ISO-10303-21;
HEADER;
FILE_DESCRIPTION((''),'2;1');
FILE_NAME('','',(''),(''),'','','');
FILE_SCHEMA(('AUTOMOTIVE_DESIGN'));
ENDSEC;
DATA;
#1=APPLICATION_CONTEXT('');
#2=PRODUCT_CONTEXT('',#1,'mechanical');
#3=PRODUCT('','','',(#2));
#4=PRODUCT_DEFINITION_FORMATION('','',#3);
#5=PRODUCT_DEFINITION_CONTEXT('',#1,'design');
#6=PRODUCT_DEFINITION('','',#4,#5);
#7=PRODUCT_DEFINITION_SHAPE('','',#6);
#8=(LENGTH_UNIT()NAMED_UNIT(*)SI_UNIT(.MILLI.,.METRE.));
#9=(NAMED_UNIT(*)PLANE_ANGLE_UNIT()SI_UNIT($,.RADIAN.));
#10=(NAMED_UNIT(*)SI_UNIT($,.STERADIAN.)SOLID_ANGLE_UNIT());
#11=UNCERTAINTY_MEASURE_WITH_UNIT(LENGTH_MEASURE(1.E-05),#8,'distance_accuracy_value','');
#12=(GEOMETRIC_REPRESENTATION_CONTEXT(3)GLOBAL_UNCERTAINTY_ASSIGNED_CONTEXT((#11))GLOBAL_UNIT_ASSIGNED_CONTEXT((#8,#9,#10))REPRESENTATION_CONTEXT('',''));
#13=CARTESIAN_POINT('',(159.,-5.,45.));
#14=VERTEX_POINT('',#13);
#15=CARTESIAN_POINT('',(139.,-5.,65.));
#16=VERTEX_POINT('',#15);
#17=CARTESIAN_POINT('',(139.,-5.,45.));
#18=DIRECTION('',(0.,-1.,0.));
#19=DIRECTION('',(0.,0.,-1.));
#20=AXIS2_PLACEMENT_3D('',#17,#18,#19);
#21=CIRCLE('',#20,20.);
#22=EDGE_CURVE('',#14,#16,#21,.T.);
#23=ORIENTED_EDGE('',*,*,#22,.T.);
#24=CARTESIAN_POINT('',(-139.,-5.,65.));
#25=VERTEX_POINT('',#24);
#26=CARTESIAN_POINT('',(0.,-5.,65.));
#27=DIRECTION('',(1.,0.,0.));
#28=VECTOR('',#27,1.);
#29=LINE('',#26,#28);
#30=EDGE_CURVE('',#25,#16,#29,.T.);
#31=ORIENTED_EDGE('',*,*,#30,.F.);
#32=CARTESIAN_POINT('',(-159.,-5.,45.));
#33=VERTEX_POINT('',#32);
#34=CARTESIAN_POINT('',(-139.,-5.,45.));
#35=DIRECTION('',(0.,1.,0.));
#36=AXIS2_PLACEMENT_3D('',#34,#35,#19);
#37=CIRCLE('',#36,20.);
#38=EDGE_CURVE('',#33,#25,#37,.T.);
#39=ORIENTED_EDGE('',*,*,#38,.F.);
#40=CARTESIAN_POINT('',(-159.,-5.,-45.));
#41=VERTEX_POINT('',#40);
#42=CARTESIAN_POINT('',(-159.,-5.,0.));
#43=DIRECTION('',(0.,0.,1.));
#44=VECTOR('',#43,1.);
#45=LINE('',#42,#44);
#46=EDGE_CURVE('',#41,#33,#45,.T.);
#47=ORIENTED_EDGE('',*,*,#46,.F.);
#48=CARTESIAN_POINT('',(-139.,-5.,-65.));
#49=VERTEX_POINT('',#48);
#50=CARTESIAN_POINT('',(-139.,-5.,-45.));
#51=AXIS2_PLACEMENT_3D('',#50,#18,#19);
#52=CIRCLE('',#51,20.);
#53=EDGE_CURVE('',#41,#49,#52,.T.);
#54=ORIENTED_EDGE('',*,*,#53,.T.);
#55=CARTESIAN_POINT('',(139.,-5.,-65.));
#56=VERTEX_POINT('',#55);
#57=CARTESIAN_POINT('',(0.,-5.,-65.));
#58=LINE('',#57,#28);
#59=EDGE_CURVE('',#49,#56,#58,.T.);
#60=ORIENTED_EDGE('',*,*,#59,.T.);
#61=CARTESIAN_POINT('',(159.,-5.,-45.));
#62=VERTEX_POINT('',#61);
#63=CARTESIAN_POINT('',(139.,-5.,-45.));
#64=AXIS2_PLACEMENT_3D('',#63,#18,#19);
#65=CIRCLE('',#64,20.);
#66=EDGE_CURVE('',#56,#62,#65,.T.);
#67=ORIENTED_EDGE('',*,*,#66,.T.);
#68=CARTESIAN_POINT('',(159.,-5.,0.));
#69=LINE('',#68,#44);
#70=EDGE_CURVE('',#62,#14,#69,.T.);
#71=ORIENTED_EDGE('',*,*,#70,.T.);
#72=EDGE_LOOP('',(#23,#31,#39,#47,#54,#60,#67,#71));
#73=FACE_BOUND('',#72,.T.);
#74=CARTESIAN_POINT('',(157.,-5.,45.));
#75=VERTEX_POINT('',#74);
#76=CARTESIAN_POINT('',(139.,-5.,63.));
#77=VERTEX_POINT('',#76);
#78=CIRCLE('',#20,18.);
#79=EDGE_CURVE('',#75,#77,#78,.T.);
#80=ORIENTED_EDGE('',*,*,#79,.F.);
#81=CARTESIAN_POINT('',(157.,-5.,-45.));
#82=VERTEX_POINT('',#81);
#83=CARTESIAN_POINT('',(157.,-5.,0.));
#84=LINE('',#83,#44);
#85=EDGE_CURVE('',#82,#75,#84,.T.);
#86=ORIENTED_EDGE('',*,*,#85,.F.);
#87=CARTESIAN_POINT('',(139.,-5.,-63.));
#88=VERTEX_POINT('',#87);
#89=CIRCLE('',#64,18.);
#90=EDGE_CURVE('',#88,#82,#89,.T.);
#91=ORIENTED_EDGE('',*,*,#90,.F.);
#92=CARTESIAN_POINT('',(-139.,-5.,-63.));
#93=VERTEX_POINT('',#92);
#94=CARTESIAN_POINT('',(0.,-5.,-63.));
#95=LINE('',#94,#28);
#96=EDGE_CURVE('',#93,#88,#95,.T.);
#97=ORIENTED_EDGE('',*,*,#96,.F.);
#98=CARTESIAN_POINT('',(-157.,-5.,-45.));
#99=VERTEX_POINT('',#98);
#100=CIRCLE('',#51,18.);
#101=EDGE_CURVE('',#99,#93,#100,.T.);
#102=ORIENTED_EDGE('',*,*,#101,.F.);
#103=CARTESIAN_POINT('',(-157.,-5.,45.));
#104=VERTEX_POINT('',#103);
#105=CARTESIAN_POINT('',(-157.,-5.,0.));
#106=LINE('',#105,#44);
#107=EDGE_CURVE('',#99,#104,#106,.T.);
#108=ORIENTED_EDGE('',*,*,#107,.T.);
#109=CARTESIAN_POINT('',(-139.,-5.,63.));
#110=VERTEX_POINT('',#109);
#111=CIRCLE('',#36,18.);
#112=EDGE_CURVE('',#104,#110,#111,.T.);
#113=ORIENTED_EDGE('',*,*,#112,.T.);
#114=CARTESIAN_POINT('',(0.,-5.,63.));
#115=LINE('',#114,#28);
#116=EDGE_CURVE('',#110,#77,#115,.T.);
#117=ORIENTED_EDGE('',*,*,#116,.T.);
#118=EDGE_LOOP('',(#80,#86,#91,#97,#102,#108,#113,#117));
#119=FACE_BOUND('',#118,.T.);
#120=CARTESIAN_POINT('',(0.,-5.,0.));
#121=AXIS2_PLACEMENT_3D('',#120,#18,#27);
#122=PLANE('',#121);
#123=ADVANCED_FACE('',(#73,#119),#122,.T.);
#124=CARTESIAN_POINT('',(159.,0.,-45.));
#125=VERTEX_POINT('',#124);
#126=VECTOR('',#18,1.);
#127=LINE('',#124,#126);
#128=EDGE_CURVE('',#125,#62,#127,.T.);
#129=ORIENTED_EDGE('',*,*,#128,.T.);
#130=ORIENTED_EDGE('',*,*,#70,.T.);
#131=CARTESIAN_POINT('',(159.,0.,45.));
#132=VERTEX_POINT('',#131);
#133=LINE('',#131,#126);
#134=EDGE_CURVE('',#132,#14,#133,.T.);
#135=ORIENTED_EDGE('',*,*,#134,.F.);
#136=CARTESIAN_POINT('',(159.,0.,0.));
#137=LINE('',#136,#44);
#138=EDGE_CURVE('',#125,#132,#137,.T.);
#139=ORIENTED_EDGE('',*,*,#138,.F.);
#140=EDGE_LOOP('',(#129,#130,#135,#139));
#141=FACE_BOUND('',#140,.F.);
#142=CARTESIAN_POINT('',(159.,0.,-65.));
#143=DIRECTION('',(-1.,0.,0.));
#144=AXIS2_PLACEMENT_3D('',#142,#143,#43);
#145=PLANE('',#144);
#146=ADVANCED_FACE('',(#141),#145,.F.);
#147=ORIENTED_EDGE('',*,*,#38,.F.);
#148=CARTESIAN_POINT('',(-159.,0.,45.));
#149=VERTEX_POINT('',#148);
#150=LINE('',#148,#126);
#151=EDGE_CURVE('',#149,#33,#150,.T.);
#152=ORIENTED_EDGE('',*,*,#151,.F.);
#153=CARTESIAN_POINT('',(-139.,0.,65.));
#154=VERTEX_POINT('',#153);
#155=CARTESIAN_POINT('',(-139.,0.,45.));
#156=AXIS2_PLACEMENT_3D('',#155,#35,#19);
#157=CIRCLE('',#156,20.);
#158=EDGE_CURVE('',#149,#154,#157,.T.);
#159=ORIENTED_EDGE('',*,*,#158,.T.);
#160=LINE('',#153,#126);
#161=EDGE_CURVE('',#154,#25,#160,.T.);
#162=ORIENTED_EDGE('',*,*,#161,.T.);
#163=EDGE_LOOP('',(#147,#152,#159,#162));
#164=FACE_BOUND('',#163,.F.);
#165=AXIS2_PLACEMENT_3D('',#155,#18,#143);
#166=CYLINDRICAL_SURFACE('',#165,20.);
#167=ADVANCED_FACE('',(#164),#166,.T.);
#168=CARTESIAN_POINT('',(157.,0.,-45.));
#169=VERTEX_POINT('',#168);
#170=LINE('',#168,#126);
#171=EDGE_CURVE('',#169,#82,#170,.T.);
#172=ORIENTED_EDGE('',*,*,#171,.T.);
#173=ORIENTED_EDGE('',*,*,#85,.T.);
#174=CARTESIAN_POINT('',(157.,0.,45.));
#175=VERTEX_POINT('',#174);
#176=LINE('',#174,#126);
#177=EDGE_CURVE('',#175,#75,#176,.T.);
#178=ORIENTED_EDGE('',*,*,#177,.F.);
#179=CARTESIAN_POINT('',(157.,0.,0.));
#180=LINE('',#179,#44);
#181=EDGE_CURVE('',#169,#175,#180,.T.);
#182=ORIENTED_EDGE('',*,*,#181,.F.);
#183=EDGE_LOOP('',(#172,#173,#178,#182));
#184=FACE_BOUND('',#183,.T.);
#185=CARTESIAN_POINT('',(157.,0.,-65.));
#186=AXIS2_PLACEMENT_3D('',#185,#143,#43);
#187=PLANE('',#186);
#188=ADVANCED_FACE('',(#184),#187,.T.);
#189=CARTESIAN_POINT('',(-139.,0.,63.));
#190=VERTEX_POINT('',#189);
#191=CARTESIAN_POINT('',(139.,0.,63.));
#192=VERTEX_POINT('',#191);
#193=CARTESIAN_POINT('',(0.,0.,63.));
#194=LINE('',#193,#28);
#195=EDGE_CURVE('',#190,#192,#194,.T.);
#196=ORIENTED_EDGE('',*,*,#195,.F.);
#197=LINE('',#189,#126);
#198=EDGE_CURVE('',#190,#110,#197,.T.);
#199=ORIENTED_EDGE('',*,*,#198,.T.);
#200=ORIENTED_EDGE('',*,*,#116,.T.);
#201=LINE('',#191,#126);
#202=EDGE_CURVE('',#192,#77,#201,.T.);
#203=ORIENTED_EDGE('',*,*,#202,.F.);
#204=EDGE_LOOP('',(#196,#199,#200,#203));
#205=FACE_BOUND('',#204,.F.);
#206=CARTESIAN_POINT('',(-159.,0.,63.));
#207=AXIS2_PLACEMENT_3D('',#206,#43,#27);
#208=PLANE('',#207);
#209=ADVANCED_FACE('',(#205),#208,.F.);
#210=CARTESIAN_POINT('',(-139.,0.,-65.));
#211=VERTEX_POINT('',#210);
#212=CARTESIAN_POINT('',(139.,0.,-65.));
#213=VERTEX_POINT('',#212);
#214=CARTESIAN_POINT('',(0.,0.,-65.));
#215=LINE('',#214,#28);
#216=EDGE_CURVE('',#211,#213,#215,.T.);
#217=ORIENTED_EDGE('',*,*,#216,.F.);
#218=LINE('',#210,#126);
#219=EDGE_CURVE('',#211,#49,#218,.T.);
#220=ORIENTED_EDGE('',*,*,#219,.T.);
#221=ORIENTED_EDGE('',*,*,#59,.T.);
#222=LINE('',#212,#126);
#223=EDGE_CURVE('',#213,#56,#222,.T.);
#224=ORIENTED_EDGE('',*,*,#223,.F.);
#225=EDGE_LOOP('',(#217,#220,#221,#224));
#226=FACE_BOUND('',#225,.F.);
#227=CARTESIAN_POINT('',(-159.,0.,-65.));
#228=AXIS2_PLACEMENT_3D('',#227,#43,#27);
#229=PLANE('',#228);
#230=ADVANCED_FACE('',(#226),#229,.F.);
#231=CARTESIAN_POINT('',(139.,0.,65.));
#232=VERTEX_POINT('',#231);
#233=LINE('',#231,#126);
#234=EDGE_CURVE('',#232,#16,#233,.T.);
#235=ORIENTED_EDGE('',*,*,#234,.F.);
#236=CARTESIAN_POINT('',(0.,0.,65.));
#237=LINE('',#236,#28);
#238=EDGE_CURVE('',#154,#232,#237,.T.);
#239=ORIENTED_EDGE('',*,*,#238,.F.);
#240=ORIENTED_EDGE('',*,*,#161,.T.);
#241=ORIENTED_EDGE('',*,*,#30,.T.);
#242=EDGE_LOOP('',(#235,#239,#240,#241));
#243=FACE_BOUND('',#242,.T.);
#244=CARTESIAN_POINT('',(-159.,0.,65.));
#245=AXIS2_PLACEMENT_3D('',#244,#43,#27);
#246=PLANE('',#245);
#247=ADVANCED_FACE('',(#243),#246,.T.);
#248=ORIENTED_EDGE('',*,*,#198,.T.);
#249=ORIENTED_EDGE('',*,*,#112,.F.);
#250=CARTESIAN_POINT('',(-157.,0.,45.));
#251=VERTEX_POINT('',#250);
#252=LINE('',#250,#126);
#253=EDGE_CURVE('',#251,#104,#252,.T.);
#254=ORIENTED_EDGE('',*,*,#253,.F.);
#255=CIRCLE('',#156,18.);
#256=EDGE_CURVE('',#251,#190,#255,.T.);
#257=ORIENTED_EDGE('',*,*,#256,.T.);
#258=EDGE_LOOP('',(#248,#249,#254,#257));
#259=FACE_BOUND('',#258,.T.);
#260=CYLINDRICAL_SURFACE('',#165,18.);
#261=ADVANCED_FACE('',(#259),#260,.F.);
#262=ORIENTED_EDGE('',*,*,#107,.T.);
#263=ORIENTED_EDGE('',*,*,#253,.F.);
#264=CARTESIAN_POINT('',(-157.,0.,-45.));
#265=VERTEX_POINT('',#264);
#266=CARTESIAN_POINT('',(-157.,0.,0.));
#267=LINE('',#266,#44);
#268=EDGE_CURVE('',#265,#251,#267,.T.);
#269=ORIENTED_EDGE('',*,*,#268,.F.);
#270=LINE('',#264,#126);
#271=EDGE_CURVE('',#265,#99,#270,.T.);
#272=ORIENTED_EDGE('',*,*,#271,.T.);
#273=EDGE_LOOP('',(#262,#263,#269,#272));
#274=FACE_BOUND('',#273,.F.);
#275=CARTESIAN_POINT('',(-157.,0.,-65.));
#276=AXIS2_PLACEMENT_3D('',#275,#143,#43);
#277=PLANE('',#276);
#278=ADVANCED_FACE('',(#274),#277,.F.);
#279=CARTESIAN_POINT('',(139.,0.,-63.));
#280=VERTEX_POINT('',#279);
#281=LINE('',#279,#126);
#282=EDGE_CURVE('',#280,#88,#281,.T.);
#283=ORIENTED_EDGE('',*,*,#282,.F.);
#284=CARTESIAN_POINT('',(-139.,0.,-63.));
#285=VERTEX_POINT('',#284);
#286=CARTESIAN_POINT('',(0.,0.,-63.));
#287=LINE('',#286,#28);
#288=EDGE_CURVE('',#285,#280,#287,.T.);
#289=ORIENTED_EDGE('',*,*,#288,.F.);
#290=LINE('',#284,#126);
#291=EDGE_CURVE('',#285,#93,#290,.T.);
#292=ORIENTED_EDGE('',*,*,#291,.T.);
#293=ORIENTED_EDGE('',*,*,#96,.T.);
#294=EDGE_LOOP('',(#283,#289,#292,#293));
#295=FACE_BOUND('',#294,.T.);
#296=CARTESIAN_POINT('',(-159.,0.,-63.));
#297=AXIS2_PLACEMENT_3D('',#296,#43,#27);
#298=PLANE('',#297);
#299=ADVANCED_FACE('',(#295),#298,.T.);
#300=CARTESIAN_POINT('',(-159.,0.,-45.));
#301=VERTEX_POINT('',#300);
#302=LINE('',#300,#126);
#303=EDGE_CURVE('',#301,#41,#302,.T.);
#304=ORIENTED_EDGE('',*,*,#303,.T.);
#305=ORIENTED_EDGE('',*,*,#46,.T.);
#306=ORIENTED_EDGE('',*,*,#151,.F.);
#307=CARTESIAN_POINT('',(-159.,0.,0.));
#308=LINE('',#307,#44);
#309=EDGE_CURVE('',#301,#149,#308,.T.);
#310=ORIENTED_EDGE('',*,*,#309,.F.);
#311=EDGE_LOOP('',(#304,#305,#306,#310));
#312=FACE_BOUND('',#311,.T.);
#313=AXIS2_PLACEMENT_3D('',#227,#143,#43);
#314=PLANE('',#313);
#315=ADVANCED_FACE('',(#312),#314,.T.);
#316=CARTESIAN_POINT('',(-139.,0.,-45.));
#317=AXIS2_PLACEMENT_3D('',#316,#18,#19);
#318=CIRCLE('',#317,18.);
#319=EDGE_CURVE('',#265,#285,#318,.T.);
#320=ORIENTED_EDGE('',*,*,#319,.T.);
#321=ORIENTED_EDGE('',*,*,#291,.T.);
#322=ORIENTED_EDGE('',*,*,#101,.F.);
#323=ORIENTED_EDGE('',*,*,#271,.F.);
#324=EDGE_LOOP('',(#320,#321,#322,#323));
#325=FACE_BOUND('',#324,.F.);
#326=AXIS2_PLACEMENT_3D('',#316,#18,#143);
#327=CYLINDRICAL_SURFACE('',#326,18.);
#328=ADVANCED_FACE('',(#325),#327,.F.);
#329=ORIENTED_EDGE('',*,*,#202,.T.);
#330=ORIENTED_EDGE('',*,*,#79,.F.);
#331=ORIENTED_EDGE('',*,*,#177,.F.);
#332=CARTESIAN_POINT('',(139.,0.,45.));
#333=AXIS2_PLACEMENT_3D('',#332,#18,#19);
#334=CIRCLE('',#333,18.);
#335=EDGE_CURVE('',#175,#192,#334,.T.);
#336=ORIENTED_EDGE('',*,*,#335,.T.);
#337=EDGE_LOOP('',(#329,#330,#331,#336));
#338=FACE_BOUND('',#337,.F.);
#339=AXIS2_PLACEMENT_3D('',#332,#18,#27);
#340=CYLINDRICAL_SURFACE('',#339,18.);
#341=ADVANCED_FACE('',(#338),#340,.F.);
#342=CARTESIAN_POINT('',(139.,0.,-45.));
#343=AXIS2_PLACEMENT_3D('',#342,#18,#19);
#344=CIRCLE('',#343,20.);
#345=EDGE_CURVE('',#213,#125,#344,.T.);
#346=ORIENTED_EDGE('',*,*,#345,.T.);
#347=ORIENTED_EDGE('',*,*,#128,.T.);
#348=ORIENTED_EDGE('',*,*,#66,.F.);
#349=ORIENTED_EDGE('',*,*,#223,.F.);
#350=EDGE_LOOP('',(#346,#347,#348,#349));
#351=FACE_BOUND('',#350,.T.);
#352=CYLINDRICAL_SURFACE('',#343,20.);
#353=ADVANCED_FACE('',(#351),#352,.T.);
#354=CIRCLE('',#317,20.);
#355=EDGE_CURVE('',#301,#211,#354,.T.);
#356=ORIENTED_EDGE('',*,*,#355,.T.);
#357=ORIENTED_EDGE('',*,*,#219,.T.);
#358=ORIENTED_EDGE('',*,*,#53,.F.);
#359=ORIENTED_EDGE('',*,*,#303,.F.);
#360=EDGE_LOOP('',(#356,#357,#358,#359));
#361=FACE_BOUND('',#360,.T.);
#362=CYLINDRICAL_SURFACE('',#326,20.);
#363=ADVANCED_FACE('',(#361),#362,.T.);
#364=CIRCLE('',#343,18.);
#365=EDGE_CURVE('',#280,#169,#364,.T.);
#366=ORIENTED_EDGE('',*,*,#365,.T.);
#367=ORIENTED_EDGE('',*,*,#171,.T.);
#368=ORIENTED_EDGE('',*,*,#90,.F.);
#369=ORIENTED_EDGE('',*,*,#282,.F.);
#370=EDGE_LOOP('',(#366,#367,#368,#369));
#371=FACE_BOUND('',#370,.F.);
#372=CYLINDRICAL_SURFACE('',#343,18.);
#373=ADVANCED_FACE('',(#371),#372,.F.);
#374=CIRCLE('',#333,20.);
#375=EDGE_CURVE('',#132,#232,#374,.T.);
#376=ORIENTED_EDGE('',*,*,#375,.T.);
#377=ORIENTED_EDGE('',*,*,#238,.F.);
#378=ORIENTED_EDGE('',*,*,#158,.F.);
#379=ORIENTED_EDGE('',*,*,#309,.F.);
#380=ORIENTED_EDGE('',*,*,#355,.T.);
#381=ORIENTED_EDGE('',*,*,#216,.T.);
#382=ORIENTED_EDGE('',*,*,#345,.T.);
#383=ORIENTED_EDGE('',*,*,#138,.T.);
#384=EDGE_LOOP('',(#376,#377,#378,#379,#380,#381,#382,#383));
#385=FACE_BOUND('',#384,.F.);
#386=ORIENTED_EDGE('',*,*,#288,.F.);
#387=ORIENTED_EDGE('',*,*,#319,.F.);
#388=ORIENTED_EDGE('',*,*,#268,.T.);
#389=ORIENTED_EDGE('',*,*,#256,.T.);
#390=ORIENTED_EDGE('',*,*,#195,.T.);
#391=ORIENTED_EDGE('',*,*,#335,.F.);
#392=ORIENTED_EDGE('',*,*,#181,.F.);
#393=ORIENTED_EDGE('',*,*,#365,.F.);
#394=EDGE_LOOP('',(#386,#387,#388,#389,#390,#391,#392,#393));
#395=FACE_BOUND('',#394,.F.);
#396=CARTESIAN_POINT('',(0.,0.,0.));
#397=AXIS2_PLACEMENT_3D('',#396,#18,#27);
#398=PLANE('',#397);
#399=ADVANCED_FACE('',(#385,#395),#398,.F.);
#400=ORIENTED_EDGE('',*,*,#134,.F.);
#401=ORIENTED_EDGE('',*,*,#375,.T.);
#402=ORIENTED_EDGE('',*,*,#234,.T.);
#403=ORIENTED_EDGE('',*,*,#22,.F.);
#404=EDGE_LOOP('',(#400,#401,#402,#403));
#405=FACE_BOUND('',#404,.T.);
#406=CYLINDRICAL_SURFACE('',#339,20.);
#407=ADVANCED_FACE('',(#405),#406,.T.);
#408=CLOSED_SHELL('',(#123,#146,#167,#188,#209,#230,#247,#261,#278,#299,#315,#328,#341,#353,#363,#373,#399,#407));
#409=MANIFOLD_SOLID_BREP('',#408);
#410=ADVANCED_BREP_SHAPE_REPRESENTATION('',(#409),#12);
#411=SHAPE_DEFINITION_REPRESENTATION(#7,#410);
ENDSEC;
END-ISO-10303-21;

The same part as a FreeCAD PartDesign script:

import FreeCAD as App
import Part
import Sketcher
Q = App.Units.Quantity


def edges_at(feature, points):
    """Names of the edges that pass closest to the given points."""
    edges = feature.Shape.Edges
    near = lambda p: min(range(len(edges)), key=lambda i: edges[i].distToShape(Part.Vertex(*p))[0])
    return sorted({f"Edge{near(p) + 1}" for p in points})


def faces_at(feature, points):
    """Names of the faces that lie closest to the given points."""
    faces = feature.Shape.Faces
    near = lambda p: min(range(len(faces)), key=lambda i: faces[i].distToShape(Part.Vertex(*p))[0])
    return sorted({f"Face{near(p) + 1}" for p in points})

doc = App.newDocument("Part")
body = doc.addObject("PartDesign::Body", "Body")

sketch1 = body.newObject("Sketcher::SketchObject", "Sketch")
sketch1.AttachmentSupport = (doc.getObject("XZ_Plane"), [""])
sketch1.MapMode = "FlatFace"
sketch1.addGeometry(Part.LineSegment(App.Vector(-159, 65, 0), App.Vector(-159, -65, 0)), False)
sketch1.addGeometry(Part.LineSegment(App.Vector(-159, -65, 0), App.Vector(159, -65, 0)), False)
sketch1.addGeometry(Part.LineSegment(App.Vector(159, -65, 0), App.Vector(159, 65, 0)), False)
sketch1.addGeometry(Part.LineSegment(App.Vector(159, 65, 0), App.Vector(-159, 65, 0)), False)
sketch1.addConstraint(Sketcher.Constraint("Coincident", 0, 2, 1, 1))
sketch1.addConstraint(Sketcher.Constraint("Coincident", 1, 2, 2, 1))
sketch1.addConstraint(Sketcher.Constraint("Coincident", 2, 2, 3, 1))
sketch1.addConstraint(Sketcher.Constraint("Coincident", 3, 2, 0, 1))
sketch1.addConstraint(Sketcher.Constraint("Vertical", 0))
sketch1.addConstraint(Sketcher.Constraint("Horizontal", 1))
sketch1.addConstraint(Sketcher.Constraint("Vertical", 2))
sketch1.addConstraint(Sketcher.Constraint("Horizontal", 3))
sketch1.addConstraint(Sketcher.Constraint("Symmetric", 0, 2, 2, 2, -1, 1))
sketch1.addConstraint(Sketcher.Constraint("DistanceX", 1, 1, 1, 2, Q("318 mm")))
sketch1.addConstraint(Sketcher.Constraint("DistanceY", 0, 2, 0, 1, Q("130 mm")))
pad1 = body.newObject("PartDesign::Pad", "Pad")
pad1.Profile = sketch1
pad1.Length = 5
doc.recompute()

fillet = body.newObject("PartDesign::Fillet", "Fillet")
fillet.Base = (pad1, edges_at(pad1, [
    (-159, -2.5, -65),
    (159, -2.5, -65),
    (159, -2.5, 65),
    (-159, -2.5, 65),
]))
fillet.Radius = 20
doc.recompute()

thickness = body.newObject("PartDesign::Thickness", "Thickness")
thickness.Base = (fillet, faces_at(fillet, [(0, -5, 0), (0, 0, 0)]))
thickness.Value = 2
thickness.Reversed = True
thickness.Join = "Arc"

doc.recompute()
